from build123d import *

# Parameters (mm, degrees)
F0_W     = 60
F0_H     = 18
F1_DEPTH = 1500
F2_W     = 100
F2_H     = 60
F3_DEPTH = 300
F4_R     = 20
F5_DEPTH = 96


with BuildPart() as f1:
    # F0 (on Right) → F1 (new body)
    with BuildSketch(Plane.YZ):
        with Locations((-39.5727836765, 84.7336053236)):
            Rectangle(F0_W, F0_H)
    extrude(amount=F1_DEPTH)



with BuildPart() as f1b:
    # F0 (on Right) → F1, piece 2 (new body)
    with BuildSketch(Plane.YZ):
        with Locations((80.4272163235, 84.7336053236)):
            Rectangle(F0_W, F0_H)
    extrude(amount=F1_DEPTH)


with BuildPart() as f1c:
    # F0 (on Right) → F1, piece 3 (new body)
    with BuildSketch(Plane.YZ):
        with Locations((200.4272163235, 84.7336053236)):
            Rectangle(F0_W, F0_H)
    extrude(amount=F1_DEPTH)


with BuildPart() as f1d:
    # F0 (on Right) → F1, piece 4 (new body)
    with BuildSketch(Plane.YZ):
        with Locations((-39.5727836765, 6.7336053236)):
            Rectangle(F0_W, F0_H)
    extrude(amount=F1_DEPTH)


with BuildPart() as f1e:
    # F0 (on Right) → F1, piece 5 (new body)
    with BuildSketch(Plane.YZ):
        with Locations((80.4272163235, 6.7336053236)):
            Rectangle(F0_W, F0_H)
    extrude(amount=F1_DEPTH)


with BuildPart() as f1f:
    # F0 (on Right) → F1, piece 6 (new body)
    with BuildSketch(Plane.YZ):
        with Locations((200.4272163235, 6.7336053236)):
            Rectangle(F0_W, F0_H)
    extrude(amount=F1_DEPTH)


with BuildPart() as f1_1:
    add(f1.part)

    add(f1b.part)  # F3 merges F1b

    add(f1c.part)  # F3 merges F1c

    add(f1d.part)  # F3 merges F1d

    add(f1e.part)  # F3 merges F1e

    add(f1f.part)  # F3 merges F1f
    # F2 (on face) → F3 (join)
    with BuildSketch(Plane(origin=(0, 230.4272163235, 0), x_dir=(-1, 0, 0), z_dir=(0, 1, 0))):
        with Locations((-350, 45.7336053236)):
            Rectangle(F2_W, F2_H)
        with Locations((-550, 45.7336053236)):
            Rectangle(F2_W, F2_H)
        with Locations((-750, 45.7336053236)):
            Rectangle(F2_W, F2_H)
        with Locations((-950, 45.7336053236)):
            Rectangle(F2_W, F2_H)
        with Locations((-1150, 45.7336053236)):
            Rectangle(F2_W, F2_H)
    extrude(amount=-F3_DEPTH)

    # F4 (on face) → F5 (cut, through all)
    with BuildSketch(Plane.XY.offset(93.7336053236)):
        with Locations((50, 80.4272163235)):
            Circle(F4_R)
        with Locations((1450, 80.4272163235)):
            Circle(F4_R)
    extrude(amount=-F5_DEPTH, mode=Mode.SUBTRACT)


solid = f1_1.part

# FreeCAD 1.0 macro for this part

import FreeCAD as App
import Part
import Sketcher
from FreeCAD import Vector
Q = App.Units.Quantity


def add_polygon(sketch, points):
    """Adds a closed chain of lines whose ends are joined by coincident constraints."""
    first, n = sketch.GeometryCount, len(points)
    for a, b in zip(points, points[1:] + points[:1]):
        sketch.addGeometry(Part.LineSegment(App.Vector(*a, 0), App.Vector(*b, 0)), False)
    for i in range(n):
        sketch.addConstraint(Sketcher.Constraint("Coincident", first + i, 2, first + (i + 1) % n, 1))

doc = App.newDocument("Part")
body = doc.addObject("PartDesign::Body", "Body")

sketch1 = doc.addObject("Sketcher::SketchObject", "Sketch")
body.addObject(sketch1)
sketch1.AttachmentSupport = (doc.YZ_Plane, [""])
sketch1.MapMode = "FlatFace"
add_polygon(sketch1, [(-70, 94), (-70, 76), (-10, 76), (-10, 94)])
sketch1.addConstraint([
    Sketcher.Constraint("Vertical", 0),
    Sketcher.Constraint("Horizontal", 1),
    Sketcher.Constraint("Vertical", 2),
    Sketcher.Constraint("Horizontal", 3),
    Sketcher.Constraint("DistanceX", 1, 1, 1, 2, Q("60 mm")),
    Sketcher.Constraint("DistanceY", 0, 2, 0, 1, Q("18 mm")),
    Sketcher.Constraint("DistanceX", 0, 2, -1, 1, Q("69.572784 mm")),
    Sketcher.Constraint("DistanceY", -1, 1, 0, 2, Q("75.733605 mm")),
])
pad1 = doc.addObject("PartDesign::Pad", "Pad")
body.addObject(pad1)
pad1.Profile = sketch1
pad1.Length = 1500
body2 = doc.addObject("PartDesign::Body", "Body001")

sketch2 = doc.addObject("Sketcher::SketchObject", "Sketch001")
body2.addObject(sketch2)
sketch2.AttachmentSupport = (doc.getObject("YZ_Plane001"), [""])
sketch2.MapMode = "FlatFace"
add_polygon(sketch2, [(50, 94), (50, 76), (110, 76), (110, 94)])
sketch2.addConstraint([
    Sketcher.Constraint("Vertical", 0),
    Sketcher.Constraint("Horizontal", 1),
    Sketcher.Constraint("Vertical", 2),
    Sketcher.Constraint("Horizontal", 3),
    Sketcher.Constraint("DistanceX", 1, 1, 1, 2, Q("60 mm")),
    Sketcher.Constraint("DistanceY", 0, 2, 0, 1, Q("18 mm")),
    Sketcher.Constraint("DistanceX", -1, 1, 0, 2, Q("50.427216 mm")),
    Sketcher.Constraint("DistanceY", -1, 1, 0, 2, Q("75.733605 mm")),
])
pad2 = doc.addObject("PartDesign::Pad", "Pad001")
body2.addObject(pad2)
pad2.Profile = sketch2
pad2.Length = 1500
body3 = doc.addObject("PartDesign::Body", "Body002")

sketch3 = doc.addObject("Sketcher::SketchObject", "Sketch002")
body3.addObject(sketch3)
sketch3.AttachmentSupport = (doc.getObject("YZ_Plane002"), [""])
sketch3.MapMode = "FlatFace"
add_polygon(sketch3, [(170, 94), (170, 76), (230, 76), (230, 94)])
sketch3.addConstraint([
    Sketcher.Constraint("Vertical", 0),
    Sketcher.Constraint("Horizontal", 1),
    Sketcher.Constraint("Vertical", 2),
    Sketcher.Constraint("Horizontal", 3),
    Sketcher.Constraint("DistanceX", 1, 1, 1, 2, Q("60 mm")),
    Sketcher.Constraint("DistanceY", 0, 2, 0, 1, Q("18 mm")),
    Sketcher.Constraint("DistanceX", -1, 1, 0, 2, Q("170.427216 mm")),
    Sketcher.Constraint("DistanceY", -1, 1, 0, 2, Q("75.733605 mm")),
])
pad3 = doc.addObject("PartDesign::Pad", "Pad002")
body3.addObject(pad3)
pad3.Profile = sketch3
pad3.Length = 1500
body4 = doc.addObject("PartDesign::Body", "Body003")

sketch4 = doc.addObject("Sketcher::SketchObject", "Sketch003")
body4.addObject(sketch4)
sketch4.AttachmentSupport = (doc.getObject("YZ_Plane003"), [""])
sketch4.MapMode = "FlatFace"
add_polygon(sketch4, [(-70, 16), (-70, -2), (-10, -2), (-10, 16)])
sketch4.addConstraint([
    Sketcher.Constraint("Vertical", 0),
    Sketcher.Constraint("Horizontal", 1),
    Sketcher.Constraint("Vertical", 2),
    Sketcher.Constraint("Horizontal", 3),
    Sketcher.Constraint("DistanceX", 1, 1, 1, 2, Q("60 mm")),
    Sketcher.Constraint("DistanceY", 0, 2, 0, 1, Q("18 mm")),
    Sketcher.Constraint("DistanceX", 0, 2, -1, 1, Q("69.572784 mm")),
    Sketcher.Constraint("DistanceY", 0, 2, -1, 1, Q("2.266395 mm")),
])
pad4 = doc.addObject("PartDesign::Pad", "Pad003")
body4.addObject(pad4)
pad4.Profile = sketch4
pad4.Length = 1500
body5 = doc.addObject("PartDesign::Body", "Body004")

sketch5 = doc.addObject("Sketcher::SketchObject", "Sketch004")
body5.addObject(sketch5)
sketch5.AttachmentSupport = (doc.getObject("YZ_Plane004"), [""])
sketch5.MapMode = "FlatFace"
add_polygon(sketch5, [(50, 16), (50, -2), (110, -2), (110, 16)])
sketch5.addConstraint([
    Sketcher.Constraint("Vertical", 0),
    Sketcher.Constraint("Horizontal", 1),
    Sketcher.Constraint("Vertical", 2),
    Sketcher.Constraint("Horizontal", 3),
    Sketcher.Constraint("DistanceX", 1, 1, 1, 2, Q("60 mm")),
    Sketcher.Constraint("DistanceY", 0, 2, 0, 1, Q("18 mm")),
    Sketcher.Constraint("DistanceX", -1, 1, 0, 2, Q("50.427216 mm")),
    Sketcher.Constraint("DistanceY", 0, 2, -1, 1, Q("2.266395 mm")),
])
pad5 = doc.addObject("PartDesign::Pad", "Pad004")
body5.addObject(pad5)
pad5.Profile = sketch5
pad5.Length = 1500
body6 = doc.addObject("PartDesign::Body", "Body005")

sketch6 = doc.addObject("Sketcher::SketchObject", "Sketch005")
body6.addObject(sketch6)
sketch6.AttachmentSupport = (doc.getObject("YZ_Plane005"), [""])
sketch6.MapMode = "FlatFace"
add_polygon(sketch6, [(170, 16), (170, -2), (230, -2), (230, 16)])
sketch6.addConstraint([
    Sketcher.Constraint("Vertical", 0),
    Sketcher.Constraint("Horizontal", 1),
    Sketcher.Constraint("Vertical", 2),
    Sketcher.Constraint("Horizontal", 3),
    Sketcher.Constraint("DistanceX", 1, 1, 1, 2, Q("60 mm")),
    Sketcher.Constraint("DistanceY", 0, 2, 0, 1, Q("18 mm")),
    Sketcher.Constraint("DistanceX", -1, 1, 0, 2, Q("170.427216 mm")),
    Sketcher.Constraint("DistanceY", 0, 2, -1, 1, Q("2.266395 mm")),
])
pad6 = doc.addObject("PartDesign::Pad", "Pad005")
body6.addObject(pad6)
pad6.Profile = sketch6
pad6.Length = 1500
body.AllowCompound = True
doc.recompute()

boolean = doc.addObject("PartDesign::Boolean", "Boolean")
body.addObject(boolean)
boolean.Type = "Fuse"
boolean.addObjects([body2])
doc.recompute()

boolean2 = doc.addObject("PartDesign::Boolean", "Boolean001")
body.addObject(boolean2)
boolean2.Type = "Fuse"
boolean2.addObjects([body3])
doc.recompute()

boolean3 = doc.addObject("PartDesign::Boolean", "Boolean002")
body.addObject(boolean3)
boolean3.Type = "Fuse"
boolean3.addObjects([body4])
doc.recompute()

boolean4 = doc.addObject("PartDesign::Boolean", "Boolean003")
body.addObject(boolean4)
boolean4.Type = "Fuse"
boolean4.addObjects([body5])
doc.recompute()

boolean5 = doc.addObject("PartDesign::Boolean", "Boolean004")
body.addObject(boolean5)
boolean5.Type = "Fuse"
boolean5.addObjects([body6])

sketch7 = doc.addObject("Sketcher::SketchObject", "Sketch006")
body.addObject(sketch7)
sketch7.AttachmentSupport = (doc.XZ_Plane, [""])
sketch7.MapMode = "FlatFace"
sketch7.AttachmentOffset = App.Placement(Vector(0, 0, -230.427216), App.Rotation())
add_polygon(sketch7, [(400, 76), (400, 16), (300, 16), (300, 76)])
add_polygon(sketch7, [(600, 76), (600, 16), (500, 16), (500, 76)])
add_polygon(sketch7, [(800, 76), (800, 16), (700, 16), (700, 76)])
add_polygon(sketch7, [(1000, 76), (1000, 16), (900, 16), (900, 76)])
add_polygon(sketch7, [(1200, 76), (1200, 16), (1100, 16), (1100, 76)])
sketch7.addConstraint([
    Sketcher.Constraint("Vertical", 0),
    Sketcher.Constraint("Horizontal", 1),
    Sketcher.Constraint("Vertical", 2),
    Sketcher.Constraint("Horizontal", 3),
    Sketcher.Constraint("Vertical", 4),
    Sketcher.Constraint("Horizontal", 5),
    Sketcher.Constraint("Vertical", 6),
    Sketcher.Constraint("Horizontal", 7),
    Sketcher.Constraint("Vertical", 8),
    Sketcher.Constraint("Horizontal", 9),
    Sketcher.Constraint("Vertical", 10),
    Sketcher.Constraint("Horizontal", 11),
    Sketcher.Constraint("Vertical", 12),
    Sketcher.Constraint("Horizontal", 13),
    Sketcher.Constraint("Vertical", 14),
    Sketcher.Constraint("Horizontal", 15),
    Sketcher.Constraint("Vertical", 16),
    Sketcher.Constraint("Horizontal", 17),
    Sketcher.Constraint("Vertical", 18),
    Sketcher.Constraint("Horizontal", 19),
    Sketcher.Constraint("Horizontal", 1, 2, 4, 2),
    Sketcher.Constraint("Horizontal", 3, 2, 6, 2),
    Sketcher.Constraint("Horizontal", 5, 2, 8, 2),
    Sketcher.Constraint("Horizontal", 7, 2, 10, 2),
    Sketcher.Constraint("Horizontal", 9, 2, 12, 2),
    Sketcher.Constraint("Horizontal", 11, 2, 14, 2),
    Sketcher.Constraint("Horizontal", 13, 2, 16, 2),
    Sketcher.Constraint("Horizontal", 15, 2, 18, 2),
    Sketcher.Constraint("Equal", 3, 5),
    Sketcher.Constraint("Equal", 7, 9),
    Sketcher.Constraint("Equal", 11, 13),
    Sketcher.Constraint("Equal", 15, 17),
    Sketcher.Constraint("DistanceX", 1, 2, 1, 1, Q("100 mm")),
    Sketcher.Constraint("DistanceY", 0, 2, 0, 1, Q("60 mm")),
    Sketcher.Constraint("DistanceX", -1, 1, 0, 2, Q("400 mm")),
    Sketcher.Constraint("DistanceX", -1, 1, 4, 2, Q("600 mm")),
    Sketcher.Constraint("DistanceX", -1, 1, 8, 2, Q("800 mm")),
    Sketcher.Constraint("DistanceX", -1, 1, 12, 2, Q("1000 mm")),
    Sketcher.Constraint("DistanceX", -1, 1, 16, 2, Q("1200 mm")),
    Sketcher.Constraint("DistanceY", -1, 1, 0, 2, Q("15.733605 mm")),
])
pad7 = doc.addObject("PartDesign::Pad", "Pad006")
body.addObject(pad7)
pad7.Profile = sketch7
pad7.Length = 300

sketch8 = doc.addObject("Sketcher::SketchObject", "Sketch007")
body.addObject(sketch8)
sketch8.AttachmentSupport = (doc.XY_Plane, [""])
sketch8.MapMode = "FlatFace"
sketch8.AttachmentOffset = App.Placement(Vector(0, 0, 93.733605), App.Rotation())
sketch8.addGeometry([
    Part.Circle(Vector(50, 80, 0), Vector(0, 0, 1), 20),
    Part.Circle(Vector(1450, 80, 0), Vector(0, 0, 1), 20),
], False)
sketch8.addConstraint([
    Sketcher.Constraint("Equal", 0, 1),
    Sketcher.Constraint("Horizontal", 0, 3, 1, 3),
    Sketcher.Constraint("Diameter", 0, Q("40 mm")),
    Sketcher.Constraint("DistanceX", -1, 1, 0, 3, Q("50 mm")),
    Sketcher.Constraint("DistanceX", -1, 1, 1, 3, Q("1450 mm")),
    Sketcher.Constraint("DistanceY", -1, 1, 0, 3, Q("80.427216 mm")),
])
pocket1 = doc.addObject("PartDesign::Pocket", "Pocket")
body.addObject(pocket1)
pocket1.Profile = sketch8
pocket1.Type = "ThroughAll"

doc.recompute()
